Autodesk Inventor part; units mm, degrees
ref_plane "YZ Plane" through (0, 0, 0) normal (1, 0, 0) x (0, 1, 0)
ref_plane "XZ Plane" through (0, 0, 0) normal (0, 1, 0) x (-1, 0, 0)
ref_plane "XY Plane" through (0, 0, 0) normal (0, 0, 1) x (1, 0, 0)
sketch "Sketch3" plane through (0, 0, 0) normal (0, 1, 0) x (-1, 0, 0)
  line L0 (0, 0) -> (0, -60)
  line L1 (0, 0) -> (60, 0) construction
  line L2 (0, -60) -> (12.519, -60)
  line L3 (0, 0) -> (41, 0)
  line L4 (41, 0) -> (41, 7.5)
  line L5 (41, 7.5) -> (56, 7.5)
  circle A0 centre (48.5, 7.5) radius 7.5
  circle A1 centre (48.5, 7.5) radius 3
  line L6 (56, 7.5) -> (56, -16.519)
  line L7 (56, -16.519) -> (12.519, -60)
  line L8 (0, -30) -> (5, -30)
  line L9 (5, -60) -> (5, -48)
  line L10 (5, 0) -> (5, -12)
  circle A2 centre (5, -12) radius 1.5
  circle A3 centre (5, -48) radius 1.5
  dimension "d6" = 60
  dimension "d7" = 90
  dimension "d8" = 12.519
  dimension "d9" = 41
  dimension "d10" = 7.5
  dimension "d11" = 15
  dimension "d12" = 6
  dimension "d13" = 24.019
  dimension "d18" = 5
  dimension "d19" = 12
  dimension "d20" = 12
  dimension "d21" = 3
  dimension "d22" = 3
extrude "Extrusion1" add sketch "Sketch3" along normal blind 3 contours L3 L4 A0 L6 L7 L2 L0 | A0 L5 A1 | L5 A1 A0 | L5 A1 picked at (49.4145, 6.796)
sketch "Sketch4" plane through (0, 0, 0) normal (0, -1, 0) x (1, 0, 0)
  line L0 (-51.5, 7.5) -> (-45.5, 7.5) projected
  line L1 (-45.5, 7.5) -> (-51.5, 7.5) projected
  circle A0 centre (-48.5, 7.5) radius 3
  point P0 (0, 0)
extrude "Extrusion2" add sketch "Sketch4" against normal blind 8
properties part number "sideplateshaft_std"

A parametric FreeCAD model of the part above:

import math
import FreeCAD as App
import Part
import Sketcher
Q = App.Units.Quantity

doc = App.newDocument("Part")
body = doc.addObject("PartDesign::Body", "Body")

# Sketch on XZ plane
sketch1 = doc.addObject("Sketcher::SketchObject", "Sketch")
body.addObject(sketch1)
sketch1.AttachmentSupport = (doc.XZ_Plane, [""])
sketch1.MapMode = "FlatFace"
sketch1.addGeometry([
    Part.LineSegment(App.Vector(-5, 0, 0), App.Vector(0, 0, 0)),  # 0
    Part.LineSegment(App.Vector(0, 0, 0), App.Vector(0, -60, 0)),  # 1
    Part.LineSegment(App.Vector(0, -60, 0), App.Vector(-5, -60, 0)),  # 2
    Part.LineSegment(App.Vector(-5, -60, 0), App.Vector(-12.519, -60, 0)),  # 3
    Part.LineSegment(App.Vector(-12.519, -60, 0), App.Vector(-56, -16.519, 0)),  # 4
    Part.LineSegment(App.Vector(-56, -16.519, 0), App.Vector(-56, 7.5, 0)),  # 5
    Part.ArcOfCircle(Part.Circle(App.Vector(-48.5, 7.5, 0), App.Vector(0, 0, 1), 7.5), math.radians(0), math.radians(180)),  # 6
    Part.LineSegment(App.Vector(-41, 7.5, 0), App.Vector(-41, 0, 0)),  # 7
    Part.LineSegment(App.Vector(-41, 0, 0), App.Vector(-5, 0, 0)),  # 8
    Part.Circle(App.Vector(-5, -48, 0), App.Vector(0, 0, 1), 1.5),  # 9
    Part.Circle(App.Vector(-5, -12, 0), App.Vector(0, 0, 1), 1.5),  # 10
    Part.ArcOfCircle(Part.Circle(App.Vector(-48.5, 7.5, 0), App.Vector(0, 0, 1), 3), math.radians(0), math.radians(180)),  # 11
    Part.LineSegment(App.Vector(-51.5, 7.5, 0), App.Vector(-45.5, 7.5, 0)),  # 12
], False)
sketch1.addConstraint([
    Sketcher.Constraint("Coincident", 0, 2, 1, 1),
    Sketcher.Constraint("Coincident", 1, 2, 2, 1),
    Sketcher.Constraint("Coincident", 2, 2, 3, 1),
    Sketcher.Constraint("Coincident", 3, 2, 4, 1),
    Sketcher.Constraint("Coincident", 4, 2, 5, 1),
    Sketcher.Constraint("Tangent", 5, 2, 6, 2),
    Sketcher.Constraint("Tangent", 6, 1, 7, 1),
    Sketcher.Constraint("Coincident", 7, 2, 8, 1),
    Sketcher.Constraint("Coincident", 8, 2, 0, 1),
    Sketcher.Constraint("Coincident", 11, 1, 12, 2),
    Sketcher.Constraint("Coincident", 12, 1, 11, 2),
    Sketcher.Constraint("Horizontal", 0),
    Sketcher.Constraint("Vertical", 1),
    Sketcher.Constraint("Horizontal", 2),
    Sketcher.Constraint("Horizontal", 3),
    Sketcher.Constraint("Vertical", 5),
    Sketcher.Constraint("Vertical", 7),
    Sketcher.Constraint("Horizontal", 8),
    Sketcher.Constraint("Horizontal", 12),
    Sketcher.Constraint("Coincident", 0, 2, -1, 1),
    Sketcher.Constraint("Coincident", 11, 3, 6, 3),
    Sketcher.Constraint("Equal", 9, 10),
    Sketcher.Constraint("Horizontal", 6, 1, 11, 1),
    Sketcher.Constraint("Vertical", 9, 3, 10, 3),
    Sketcher.Constraint("Vertical", 10, 3, 2, 2),
    Sketcher.Constraint("Vertical", 2, 2, 8, 2),
    Sketcher.Constraint("Diameter", 9, 3.0),
    Sketcher.Constraint("Radius", 11, 3.0),
    Sketcher.Constraint("Radius", 6, 7.5),
    Sketcher.Constraint("DistanceX", 0, 1, 0, 2, 5.0),
    Sketcher.Constraint("DistanceY", 1, 2, 1, 1, 60.0),
    Sketcher.Constraint("DistanceY", 7, 2, 7, 1, 7.5),
    Sketcher.Constraint("DistanceY", 10, 3, -1, 1, 12.0),
    Sketcher.Constraint("DistanceX", 6, 1, -1, 1, 41.0),
    Sketcher.Constraint("DistanceY", 1, 2, 9, 3, 12.0),
    Sketcher.Constraint("DistanceY", 5, 1, 5, 2, 24.019),
    Sketcher.Constraint("Angle", 4, Q("135 deg")),
])
pad1 = doc.addObject("PartDesign::Pad", "Pad")
body.addObject(pad1)
pad1.Profile = sketch1
pad1.Length = 3
pad1.Reversed = True

# Sketch on XZ plane
sketch2 = doc.addObject("Sketcher::SketchObject", "Sketch001")
body.addObject(sketch2)
sketch2.AttachmentSupport = (doc.XZ_Plane, [""])
sketch2.MapMode = "FlatFace"
sketch2.addGeometry(Part.Circle(App.Vector(-48.5, 7.5, 0), App.Vector(0, 0, 1), 3), False)
sketch2.addConstraint([
    Sketcher.Constraint("Diameter", 0, 6.0),
    Sketcher.Constraint("DistanceX", 0, 3, -1, 1, 48.5),
    Sketcher.Constraint("DistanceY", -1, 1, 0, 3, 7.5),
])
pad2 = doc.addObject("PartDesign::Pad", "Pad001")
body.addObject(pad2)
pad2.Profile = sketch2
pad2.Length = 8
pad2.Reversed = True

doc.recompute()
